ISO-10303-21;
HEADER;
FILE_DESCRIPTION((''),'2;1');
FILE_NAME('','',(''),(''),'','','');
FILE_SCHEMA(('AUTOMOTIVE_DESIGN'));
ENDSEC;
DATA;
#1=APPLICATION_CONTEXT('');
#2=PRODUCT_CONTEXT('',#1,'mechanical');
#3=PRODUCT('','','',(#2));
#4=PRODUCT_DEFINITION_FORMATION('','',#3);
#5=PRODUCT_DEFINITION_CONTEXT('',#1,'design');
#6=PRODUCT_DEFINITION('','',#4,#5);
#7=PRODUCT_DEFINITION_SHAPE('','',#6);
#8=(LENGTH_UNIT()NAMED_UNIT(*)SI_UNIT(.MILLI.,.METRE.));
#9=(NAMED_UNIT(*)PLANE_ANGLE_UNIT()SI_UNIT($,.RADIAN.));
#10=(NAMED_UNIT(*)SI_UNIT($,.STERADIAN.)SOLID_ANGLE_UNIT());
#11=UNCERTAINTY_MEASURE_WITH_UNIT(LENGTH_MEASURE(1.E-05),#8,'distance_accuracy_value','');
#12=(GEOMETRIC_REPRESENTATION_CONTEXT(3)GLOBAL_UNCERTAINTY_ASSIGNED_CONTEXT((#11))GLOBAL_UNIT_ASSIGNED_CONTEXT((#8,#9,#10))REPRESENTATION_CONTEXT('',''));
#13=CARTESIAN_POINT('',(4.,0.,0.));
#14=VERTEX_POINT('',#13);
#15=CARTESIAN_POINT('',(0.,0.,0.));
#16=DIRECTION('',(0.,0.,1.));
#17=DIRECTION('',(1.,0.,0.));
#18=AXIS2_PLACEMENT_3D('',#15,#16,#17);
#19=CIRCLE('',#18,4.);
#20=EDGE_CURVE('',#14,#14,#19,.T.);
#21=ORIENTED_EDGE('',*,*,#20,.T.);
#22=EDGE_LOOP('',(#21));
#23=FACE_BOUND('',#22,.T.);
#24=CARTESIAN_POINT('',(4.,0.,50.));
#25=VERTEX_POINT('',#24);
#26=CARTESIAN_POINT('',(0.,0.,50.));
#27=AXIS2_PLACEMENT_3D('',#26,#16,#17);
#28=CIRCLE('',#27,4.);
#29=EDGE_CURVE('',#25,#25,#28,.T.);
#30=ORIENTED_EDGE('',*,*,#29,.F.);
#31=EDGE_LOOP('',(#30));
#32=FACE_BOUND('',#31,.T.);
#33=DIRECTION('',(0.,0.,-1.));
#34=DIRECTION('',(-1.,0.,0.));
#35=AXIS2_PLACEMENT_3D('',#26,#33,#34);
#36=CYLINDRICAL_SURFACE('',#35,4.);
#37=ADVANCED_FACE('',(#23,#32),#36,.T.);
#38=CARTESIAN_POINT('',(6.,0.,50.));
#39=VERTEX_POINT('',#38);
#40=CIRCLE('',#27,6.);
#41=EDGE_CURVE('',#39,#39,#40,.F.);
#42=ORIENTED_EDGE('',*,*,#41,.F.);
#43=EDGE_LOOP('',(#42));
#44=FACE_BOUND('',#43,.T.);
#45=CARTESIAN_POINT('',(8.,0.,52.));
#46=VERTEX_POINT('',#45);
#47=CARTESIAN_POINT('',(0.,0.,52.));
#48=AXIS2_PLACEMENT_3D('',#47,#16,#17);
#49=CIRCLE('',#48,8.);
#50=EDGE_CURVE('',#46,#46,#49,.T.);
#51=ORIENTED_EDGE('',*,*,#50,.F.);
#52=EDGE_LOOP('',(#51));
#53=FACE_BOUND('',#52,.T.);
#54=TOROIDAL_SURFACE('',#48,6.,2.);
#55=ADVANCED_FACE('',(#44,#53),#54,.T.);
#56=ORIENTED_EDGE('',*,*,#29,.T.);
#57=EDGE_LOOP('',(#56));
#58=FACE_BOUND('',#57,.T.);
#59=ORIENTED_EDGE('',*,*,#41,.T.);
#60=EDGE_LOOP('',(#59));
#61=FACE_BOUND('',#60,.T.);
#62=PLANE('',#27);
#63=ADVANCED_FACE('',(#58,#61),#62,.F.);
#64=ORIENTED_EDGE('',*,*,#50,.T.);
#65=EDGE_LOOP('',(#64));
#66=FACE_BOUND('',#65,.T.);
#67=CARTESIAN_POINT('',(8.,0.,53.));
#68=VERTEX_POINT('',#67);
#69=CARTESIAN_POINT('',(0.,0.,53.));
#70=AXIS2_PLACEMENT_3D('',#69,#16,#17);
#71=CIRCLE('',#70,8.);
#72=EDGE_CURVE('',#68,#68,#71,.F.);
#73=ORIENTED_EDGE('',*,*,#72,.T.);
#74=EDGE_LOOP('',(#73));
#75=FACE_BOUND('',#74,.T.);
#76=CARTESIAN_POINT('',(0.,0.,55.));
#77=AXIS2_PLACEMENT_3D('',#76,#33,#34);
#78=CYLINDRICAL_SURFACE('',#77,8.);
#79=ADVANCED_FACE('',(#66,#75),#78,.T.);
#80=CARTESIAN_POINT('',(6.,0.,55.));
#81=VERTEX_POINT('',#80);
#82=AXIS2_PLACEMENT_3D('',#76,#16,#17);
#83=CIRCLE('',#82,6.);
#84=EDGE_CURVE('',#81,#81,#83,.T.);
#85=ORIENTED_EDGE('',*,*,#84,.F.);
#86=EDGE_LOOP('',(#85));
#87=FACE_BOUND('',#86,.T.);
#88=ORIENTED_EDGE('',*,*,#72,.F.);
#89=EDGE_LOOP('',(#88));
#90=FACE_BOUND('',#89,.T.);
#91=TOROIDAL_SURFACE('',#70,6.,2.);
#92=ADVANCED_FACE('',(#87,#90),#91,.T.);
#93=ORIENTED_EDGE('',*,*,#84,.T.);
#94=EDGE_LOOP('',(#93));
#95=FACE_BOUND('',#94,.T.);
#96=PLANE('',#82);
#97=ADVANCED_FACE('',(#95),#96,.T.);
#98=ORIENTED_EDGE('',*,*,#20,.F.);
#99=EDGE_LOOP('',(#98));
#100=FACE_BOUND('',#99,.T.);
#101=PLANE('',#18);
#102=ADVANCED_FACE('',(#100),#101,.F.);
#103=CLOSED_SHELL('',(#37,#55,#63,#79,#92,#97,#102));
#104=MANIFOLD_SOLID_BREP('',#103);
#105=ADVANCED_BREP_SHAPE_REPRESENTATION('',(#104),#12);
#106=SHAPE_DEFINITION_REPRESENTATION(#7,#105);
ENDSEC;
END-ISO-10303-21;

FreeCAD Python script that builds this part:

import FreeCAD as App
import Part
import Sketcher
from FreeCAD import Vector


def edges_at(feature, points):
    """Names of the edges that pass closest to the given points."""
    edges = feature.Shape.Edges
    near = lambda p: min(range(len(edges)), key=lambda i: edges[i].distToShape(Part.Vertex(*p))[0])
    return sorted({f"Edge{near(p) + 1}" for p in points})

doc = App.newDocument("Part")
body = doc.addObject("PartDesign::Body", "Body")

sketch1 = body.newObject("Sketcher::SketchObject", "Sketch")
sketch1.AttachmentSupport = (doc.getObject("XY_Plane"), [""])
sketch1.MapMode = "FlatFace"
sketch1.addGeometry(Part.Circle(Vector(0, 0, 0), Vector(0, 0, 1), 4), False)
sketch1.addConstraint([
    Sketcher.Constraint("Coincident", 0, 3, -1, 1),
    Sketcher.Constraint("Diameter", 0, 8.0),
])
pad1 = body.newObject("PartDesign::Pad", "Pad")
pad1.Profile = sketch1
pad1.Length = 50

sketch2 = body.newObject("Sketcher::SketchObject", "Sketch001")
sketch2.AttachmentSupport = (doc.getObject("XY_Plane"), [""])
sketch2.MapMode = "FlatFace"
sketch2.AttachmentOffset = App.Placement(Vector(0, 0, 50), App.Rotation())
sketch2.addGeometry(Part.Circle(Vector(0, 0, 0), Vector(0, 0, 1), 8), False)
sketch2.addConstraint([
    Sketcher.Constraint("Coincident", 0, 3, -1, 1),
    Sketcher.Constraint("Diameter", 0, 16.0),
])
pad2 = body.newObject("PartDesign::Pad", "Pad001")
pad2.Profile = sketch2
pad2.Length = 5
doc.recompute()

fillet = body.newObject("PartDesign::Fillet", "Fillet")
fillet.Base = (pad2, edges_at(pad2, [(-8, 0, 50), (-8, 0, 55)]))
fillet.Radius = 2

doc.recompute()
